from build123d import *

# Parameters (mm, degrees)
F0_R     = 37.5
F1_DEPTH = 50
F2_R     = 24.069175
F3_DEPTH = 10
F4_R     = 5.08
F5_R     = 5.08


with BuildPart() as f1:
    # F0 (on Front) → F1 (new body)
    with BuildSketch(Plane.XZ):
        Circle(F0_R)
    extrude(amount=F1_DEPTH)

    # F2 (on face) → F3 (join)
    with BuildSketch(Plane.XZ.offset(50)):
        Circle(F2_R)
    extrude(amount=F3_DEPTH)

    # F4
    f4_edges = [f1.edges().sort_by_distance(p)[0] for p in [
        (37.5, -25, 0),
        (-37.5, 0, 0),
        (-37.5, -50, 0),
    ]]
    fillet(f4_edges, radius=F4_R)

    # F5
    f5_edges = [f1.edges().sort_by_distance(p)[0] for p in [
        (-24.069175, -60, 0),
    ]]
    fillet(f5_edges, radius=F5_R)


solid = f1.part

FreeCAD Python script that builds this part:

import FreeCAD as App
import Part
import Sketcher
from FreeCAD import Vector
Q = App.Units.Quantity


def edges_at(feature, points):
    """Names of the edges that pass closest to the given points."""
    edges = feature.Shape.Edges
    near = lambda p: min(range(len(edges)), key=lambda i: edges[i].distToShape(Part.Vertex(*p))[0])
    return sorted({f"Edge{near(p) + 1}" for p in points})

doc = App.newDocument("Part")
body = doc.addObject("PartDesign::Body", "Body")

sketch1 = body.newObject("Sketcher::SketchObject", "Sketch")
sketch1.AttachmentSupport = (doc.getObject("XZ_Plane"), [""])
sketch1.MapMode = "FlatFace"
sketch1.addGeometry(Part.Circle(Vector(0, 0, 0), Vector(0, 0, 1), 37.5), False)
sketch1.addConstraint([
    Sketcher.Constraint("Coincident", 0, 3, -1, 1),
    Sketcher.Constraint("Diameter", 0, Q("75 mm")),
])
pad1 = body.newObject("PartDesign::Pad", "Pad")
pad1.Profile = sketch1
pad1.Length = 50

sketch2 = body.newObject("Sketcher::SketchObject", "Sketch001")
sketch2.AttachmentSupport = (doc.getObject("XZ_Plane"), [""])
sketch2.MapMode = "FlatFace"
sketch2.AttachmentOffset = App.Placement(Vector(0, 0, 50), App.Rotation())
sketch2.addGeometry(Part.Circle(Vector(0, 0, 0), Vector(0, 0, 1), 24.069175), False)
sketch2.addConstraint([
    Sketcher.Constraint("Coincident", 0, 3, -1, 1),
    Sketcher.Constraint("Diameter", 0, Q("48.13835 mm")),
])
pad2 = body.newObject("PartDesign::Pad", "Pad001")
pad2.Profile = sketch2
pad2.Length = 10
doc.recompute()

fillet = body.newObject("PartDesign::Fillet", "Fillet")
fillet.Base = (pad2, edges_at(pad2, [(37.5, -25, 0), (-37.5, 0, 0), (-37.5, -50, 0)]))
fillet.Radius = 5.08
doc.recompute()

fillet2 = body.newObject("PartDesign::Fillet", "Fillet001")
fillet2.Base = (fillet, edges_at(fillet, [(-24.069, -60, 0)]))
fillet2.Radius = 5.08

doc.recompute()
